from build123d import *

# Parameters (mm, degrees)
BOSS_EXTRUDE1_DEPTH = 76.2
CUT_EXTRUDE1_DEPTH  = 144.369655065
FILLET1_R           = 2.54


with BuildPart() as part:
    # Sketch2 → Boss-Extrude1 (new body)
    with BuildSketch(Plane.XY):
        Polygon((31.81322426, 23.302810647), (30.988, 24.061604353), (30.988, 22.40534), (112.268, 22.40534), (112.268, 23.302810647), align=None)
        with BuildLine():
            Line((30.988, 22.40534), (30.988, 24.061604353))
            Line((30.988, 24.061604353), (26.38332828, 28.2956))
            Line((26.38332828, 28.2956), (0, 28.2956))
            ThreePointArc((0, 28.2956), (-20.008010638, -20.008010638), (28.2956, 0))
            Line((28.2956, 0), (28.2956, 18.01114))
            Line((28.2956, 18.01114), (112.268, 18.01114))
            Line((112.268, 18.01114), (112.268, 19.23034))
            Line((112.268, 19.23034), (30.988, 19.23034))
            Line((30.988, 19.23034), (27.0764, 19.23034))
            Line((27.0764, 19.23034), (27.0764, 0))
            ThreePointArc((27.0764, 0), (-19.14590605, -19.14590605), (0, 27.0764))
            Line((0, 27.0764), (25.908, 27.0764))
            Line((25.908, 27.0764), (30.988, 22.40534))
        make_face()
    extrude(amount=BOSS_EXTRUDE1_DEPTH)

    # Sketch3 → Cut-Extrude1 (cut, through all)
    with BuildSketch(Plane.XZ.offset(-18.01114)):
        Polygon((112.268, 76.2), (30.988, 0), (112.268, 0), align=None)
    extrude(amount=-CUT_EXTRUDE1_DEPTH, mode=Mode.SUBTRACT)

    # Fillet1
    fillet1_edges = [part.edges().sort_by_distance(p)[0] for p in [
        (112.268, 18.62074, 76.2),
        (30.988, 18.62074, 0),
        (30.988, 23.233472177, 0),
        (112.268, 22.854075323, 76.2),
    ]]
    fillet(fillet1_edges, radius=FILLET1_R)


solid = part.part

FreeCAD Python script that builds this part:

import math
import FreeCAD as App
import Part
import Sketcher
from FreeCAD import Vector
Q = App.Units.Quantity


def edges_at(feature, points):
    """Names of the edges that pass closest to the given points."""
    edges = feature.Shape.Edges
    near = lambda p: min(range(len(edges)), key=lambda i: edges[i].distToShape(Part.Vertex(*p))[0])
    return sorted({f"Edge{near(p) + 1}" for p in points})


def add_polygon(sketch, points):
    """Adds a closed chain of lines whose ends are joined by coincident constraints."""
    first, n = sketch.GeometryCount, len(points)
    for a, b in zip(points, points[1:] + points[:1]):
        sketch.addGeometry(Part.LineSegment(App.Vector(*a, 0), App.Vector(*b, 0)), False)
    for i in range(n):
        sketch.addConstraint(Sketcher.Constraint("Coincident", first + i, 2, first + (i + 1) % n, 1))

doc = App.newDocument("Part")
body = doc.addObject("PartDesign::Body", "Body")

sketch1 = body.newObject("Sketcher::SketchObject", "Sketch")
sketch1.AttachmentSupport = (doc.getObject("XY_Plane"), [""])
sketch1.MapMode = "FlatFace"
sketch1.addGeometry(Part.LineSegment(Vector(31.8, 23.3, 0), Vector(31, 24.1, 0)), False)
sketch1.addGeometry(Part.LineSegment(Vector(31, 24.1, 0), Vector(26.4, 28.3, 0)), False)
sketch1.addGeometry(Part.LineSegment(Vector(26.4, 28.3, 0), Vector(0, 28.3, 0)), False)
sketch1.addGeometry(Part.ArcOfCircle(Part.Circle(Vector(0, 0, 0), Vector(0, 0, 1), 28.3), math.radians(90), math.radians(360)), False)
sketch1.addGeometry(Part.LineSegment(Vector(28.3, 0, 0), Vector(28.3, 18, 0)), False)
sketch1.addGeometry(Part.LineSegment(Vector(28.3, 18, 0), Vector(112.3, 18, 0)), False)
sketch1.addGeometry(Part.LineSegment(Vector(112.3, 18, 0), Vector(112.3, 19.2, 0)), False)
sketch1.addGeometry(Part.LineSegment(Vector(112.3, 19.2, 0), Vector(27.1, 19.2, 0)), False)
sketch1.addGeometry(Part.LineSegment(Vector(27.1, 19.2, 0), Vector(27.1, 0, 0)), False)
sketch1.addGeometry(Part.ArcOfCircle(Part.Circle(Vector(0, 0, 0), Vector(0, 0, 1), 27.1), math.radians(90), math.radians(360)), False)
sketch1.addGeometry(Part.LineSegment(Vector(0, 27.1, 0), Vector(25.9, 27.1, 0)), False)
sketch1.addGeometry(Part.LineSegment(Vector(25.9, 27.1, 0), Vector(31, 22.4, 0)), False)
sketch1.addGeometry(Part.LineSegment(Vector(31, 22.4, 0), Vector(112.3, 22.4, 0)), False)
sketch1.addGeometry(Part.LineSegment(Vector(112.3, 22.4, 0), Vector(112.3, 23.3, 0)), False)
sketch1.addGeometry(Part.LineSegment(Vector(112.3, 23.3, 0), Vector(31.8, 23.3, 0)), False)
sketch1.addConstraint(Sketcher.Constraint("Coincident", 0, 2, 1, 1))
sketch1.addConstraint(Sketcher.Constraint("Coincident", 1, 2, 2, 1))
sketch1.addConstraint(Sketcher.Constraint("Tangent", 2, 2, 3, 1))
sketch1.addConstraint(Sketcher.Constraint("Tangent", 3, 2, 4, 1))
sketch1.addConstraint(Sketcher.Constraint("Coincident", 4, 2, 5, 1))
sketch1.addConstraint(Sketcher.Constraint("Coincident", 5, 2, 6, 1))
sketch1.addConstraint(Sketcher.Constraint("Coincident", 6, 2, 7, 1))
sketch1.addConstraint(Sketcher.Constraint("Coincident", 7, 2, 8, 1))
sketch1.addConstraint(Sketcher.Constraint("Tangent", 8, 2, 9, 2))
sketch1.addConstraint(Sketcher.Constraint("Tangent", 9, 1, 10, 1))
sketch1.addConstraint(Sketcher.Constraint("Coincident", 10, 2, 11, 1))
sketch1.addConstraint(Sketcher.Constraint("Coincident", 11, 2, 12, 1))
sketch1.addConstraint(Sketcher.Constraint("Coincident", 12, 2, 13, 1))
sketch1.addConstraint(Sketcher.Constraint("Coincident", 13, 2, 14, 1))
sketch1.addConstraint(Sketcher.Constraint("Coincident", 14, 2, 0, 1))
sketch1.addConstraint(Sketcher.Constraint("Horizontal", 2))
sketch1.addConstraint(Sketcher.Constraint("Vertical", 4))
sketch1.addConstraint(Sketcher.Constraint("Horizontal", 5))
sketch1.addConstraint(Sketcher.Constraint("Vertical", 6))
sketch1.addConstraint(Sketcher.Constraint("Horizontal", 7))
sketch1.addConstraint(Sketcher.Constraint("Vertical", 8))
sketch1.addConstraint(Sketcher.Constraint("Horizontal", 10))
sketch1.addConstraint(Sketcher.Constraint("Horizontal", 12))
sketch1.addConstraint(Sketcher.Constraint("Vertical", 13))
sketch1.addConstraint(Sketcher.Constraint("Horizontal", 14))
sketch1.addConstraint(Sketcher.Constraint("Coincident", 3, 3, -1, 1))
sketch1.addConstraint(Sketcher.Constraint("Coincident", 9, 3, -1, 1))
sketch1.addConstraint(Sketcher.Constraint("Parallel", 0, 1))
sketch1.addConstraint(Sketcher.Constraint("Parallel", 1, 11))
sketch1.addConstraint(Sketcher.Constraint("Vertical", 0, 2, 11, 2))
sketch1.addConstraint(Sketcher.Constraint("Vertical", 6, 2, 12, 2))
sketch1.addConstraint(Sketcher.Constraint("DistanceX", 12, 1, 12, 2, Q("3.2 in")))
sketch1.addConstraint(Sketcher.Constraint("Radius", 3, Q("1.114 in")))
sketch1.addConstraint(Sketcher.Constraint("Radius", 9, Q("1.066 in")))
sketch1.addConstraint(Sketcher.Constraint("DistanceX", 10, 1, 10, 2, Q("1.02 in")))
sketch1.addConstraint(Sketcher.Constraint("DistanceX", 10, 2, 0, 2, Q("0.2 in")))
sketch1.addConstraint(Sketcher.Constraint("DistanceY", 6, 1, 6, 2, Q("0.048 in")))
sketch1.addConstraint(Sketcher.Constraint("DistanceY", 4, 1, 4, 2, Q("0.7091 in")))
sketch1.addConstraint(Sketcher.Constraint("DistanceY", 7, 2, 11, 2, Q("0.125 in")))
sketch1.addConstraint(Sketcher.Constraint("DistanceX", 2, 2, 2, 1, 26.383328))
sketch1.addConstraint(Sketcher.Constraint("DistanceY", 13, 1, 13, 2, 0.897471))
pad1 = body.newObject("PartDesign::Pad", "Pad")
pad1.Profile = sketch1
pad1.Length = Q("3 in")

sketch2 = body.newObject("Sketcher::SketchObject", "Sketch001")
sketch2.AttachmentSupport = (doc.getObject("XZ_Plane"), [""])
sketch2.MapMode = "FlatFace"
sketch2.AttachmentOffset = App.Placement(Vector(0, 0, -0.7091 * 25.4), App.Rotation())
add_polygon(sketch2, [(112, 76), (31, 0), (112, 0)])
sketch2.addConstraint(Sketcher.Constraint("Horizontal", 1))
sketch2.addConstraint(Sketcher.Constraint("Vertical", 2))
sketch2.addConstraint(Sketcher.Constraint("PointOnObject", 0, 2, -1))
sketch2.addConstraint(Sketcher.Constraint("DistanceY", 2, 1, 2, 2, Q("3 in")))
sketch2.addConstraint(Sketcher.Constraint("DistanceX", 1, 1, 1, 2, Q("3.2 in")))
sketch2.addConstraint(Sketcher.Constraint("DistanceX", -1, 1, 0, 2, Q("1.22 in")))
pocket1 = body.newObject("PartDesign::Pocket", "Pocket")
pocket1.Profile = sketch2
pocket1.Type = "ThroughAll"
doc.recompute()

fillet = body.newObject("PartDesign::Fillet", "Fillet")
fillet.Base = (pocket1, edges_at(pocket1, [
    (112.268, 18.621, 76.2),
    (30.988, 18.621, 0),
    (30.988, 23.233, 0),
    (112.268, 22.854, 76.2),
]))
fillet.Radius = Q("0.1 in")

doc.recompute()
